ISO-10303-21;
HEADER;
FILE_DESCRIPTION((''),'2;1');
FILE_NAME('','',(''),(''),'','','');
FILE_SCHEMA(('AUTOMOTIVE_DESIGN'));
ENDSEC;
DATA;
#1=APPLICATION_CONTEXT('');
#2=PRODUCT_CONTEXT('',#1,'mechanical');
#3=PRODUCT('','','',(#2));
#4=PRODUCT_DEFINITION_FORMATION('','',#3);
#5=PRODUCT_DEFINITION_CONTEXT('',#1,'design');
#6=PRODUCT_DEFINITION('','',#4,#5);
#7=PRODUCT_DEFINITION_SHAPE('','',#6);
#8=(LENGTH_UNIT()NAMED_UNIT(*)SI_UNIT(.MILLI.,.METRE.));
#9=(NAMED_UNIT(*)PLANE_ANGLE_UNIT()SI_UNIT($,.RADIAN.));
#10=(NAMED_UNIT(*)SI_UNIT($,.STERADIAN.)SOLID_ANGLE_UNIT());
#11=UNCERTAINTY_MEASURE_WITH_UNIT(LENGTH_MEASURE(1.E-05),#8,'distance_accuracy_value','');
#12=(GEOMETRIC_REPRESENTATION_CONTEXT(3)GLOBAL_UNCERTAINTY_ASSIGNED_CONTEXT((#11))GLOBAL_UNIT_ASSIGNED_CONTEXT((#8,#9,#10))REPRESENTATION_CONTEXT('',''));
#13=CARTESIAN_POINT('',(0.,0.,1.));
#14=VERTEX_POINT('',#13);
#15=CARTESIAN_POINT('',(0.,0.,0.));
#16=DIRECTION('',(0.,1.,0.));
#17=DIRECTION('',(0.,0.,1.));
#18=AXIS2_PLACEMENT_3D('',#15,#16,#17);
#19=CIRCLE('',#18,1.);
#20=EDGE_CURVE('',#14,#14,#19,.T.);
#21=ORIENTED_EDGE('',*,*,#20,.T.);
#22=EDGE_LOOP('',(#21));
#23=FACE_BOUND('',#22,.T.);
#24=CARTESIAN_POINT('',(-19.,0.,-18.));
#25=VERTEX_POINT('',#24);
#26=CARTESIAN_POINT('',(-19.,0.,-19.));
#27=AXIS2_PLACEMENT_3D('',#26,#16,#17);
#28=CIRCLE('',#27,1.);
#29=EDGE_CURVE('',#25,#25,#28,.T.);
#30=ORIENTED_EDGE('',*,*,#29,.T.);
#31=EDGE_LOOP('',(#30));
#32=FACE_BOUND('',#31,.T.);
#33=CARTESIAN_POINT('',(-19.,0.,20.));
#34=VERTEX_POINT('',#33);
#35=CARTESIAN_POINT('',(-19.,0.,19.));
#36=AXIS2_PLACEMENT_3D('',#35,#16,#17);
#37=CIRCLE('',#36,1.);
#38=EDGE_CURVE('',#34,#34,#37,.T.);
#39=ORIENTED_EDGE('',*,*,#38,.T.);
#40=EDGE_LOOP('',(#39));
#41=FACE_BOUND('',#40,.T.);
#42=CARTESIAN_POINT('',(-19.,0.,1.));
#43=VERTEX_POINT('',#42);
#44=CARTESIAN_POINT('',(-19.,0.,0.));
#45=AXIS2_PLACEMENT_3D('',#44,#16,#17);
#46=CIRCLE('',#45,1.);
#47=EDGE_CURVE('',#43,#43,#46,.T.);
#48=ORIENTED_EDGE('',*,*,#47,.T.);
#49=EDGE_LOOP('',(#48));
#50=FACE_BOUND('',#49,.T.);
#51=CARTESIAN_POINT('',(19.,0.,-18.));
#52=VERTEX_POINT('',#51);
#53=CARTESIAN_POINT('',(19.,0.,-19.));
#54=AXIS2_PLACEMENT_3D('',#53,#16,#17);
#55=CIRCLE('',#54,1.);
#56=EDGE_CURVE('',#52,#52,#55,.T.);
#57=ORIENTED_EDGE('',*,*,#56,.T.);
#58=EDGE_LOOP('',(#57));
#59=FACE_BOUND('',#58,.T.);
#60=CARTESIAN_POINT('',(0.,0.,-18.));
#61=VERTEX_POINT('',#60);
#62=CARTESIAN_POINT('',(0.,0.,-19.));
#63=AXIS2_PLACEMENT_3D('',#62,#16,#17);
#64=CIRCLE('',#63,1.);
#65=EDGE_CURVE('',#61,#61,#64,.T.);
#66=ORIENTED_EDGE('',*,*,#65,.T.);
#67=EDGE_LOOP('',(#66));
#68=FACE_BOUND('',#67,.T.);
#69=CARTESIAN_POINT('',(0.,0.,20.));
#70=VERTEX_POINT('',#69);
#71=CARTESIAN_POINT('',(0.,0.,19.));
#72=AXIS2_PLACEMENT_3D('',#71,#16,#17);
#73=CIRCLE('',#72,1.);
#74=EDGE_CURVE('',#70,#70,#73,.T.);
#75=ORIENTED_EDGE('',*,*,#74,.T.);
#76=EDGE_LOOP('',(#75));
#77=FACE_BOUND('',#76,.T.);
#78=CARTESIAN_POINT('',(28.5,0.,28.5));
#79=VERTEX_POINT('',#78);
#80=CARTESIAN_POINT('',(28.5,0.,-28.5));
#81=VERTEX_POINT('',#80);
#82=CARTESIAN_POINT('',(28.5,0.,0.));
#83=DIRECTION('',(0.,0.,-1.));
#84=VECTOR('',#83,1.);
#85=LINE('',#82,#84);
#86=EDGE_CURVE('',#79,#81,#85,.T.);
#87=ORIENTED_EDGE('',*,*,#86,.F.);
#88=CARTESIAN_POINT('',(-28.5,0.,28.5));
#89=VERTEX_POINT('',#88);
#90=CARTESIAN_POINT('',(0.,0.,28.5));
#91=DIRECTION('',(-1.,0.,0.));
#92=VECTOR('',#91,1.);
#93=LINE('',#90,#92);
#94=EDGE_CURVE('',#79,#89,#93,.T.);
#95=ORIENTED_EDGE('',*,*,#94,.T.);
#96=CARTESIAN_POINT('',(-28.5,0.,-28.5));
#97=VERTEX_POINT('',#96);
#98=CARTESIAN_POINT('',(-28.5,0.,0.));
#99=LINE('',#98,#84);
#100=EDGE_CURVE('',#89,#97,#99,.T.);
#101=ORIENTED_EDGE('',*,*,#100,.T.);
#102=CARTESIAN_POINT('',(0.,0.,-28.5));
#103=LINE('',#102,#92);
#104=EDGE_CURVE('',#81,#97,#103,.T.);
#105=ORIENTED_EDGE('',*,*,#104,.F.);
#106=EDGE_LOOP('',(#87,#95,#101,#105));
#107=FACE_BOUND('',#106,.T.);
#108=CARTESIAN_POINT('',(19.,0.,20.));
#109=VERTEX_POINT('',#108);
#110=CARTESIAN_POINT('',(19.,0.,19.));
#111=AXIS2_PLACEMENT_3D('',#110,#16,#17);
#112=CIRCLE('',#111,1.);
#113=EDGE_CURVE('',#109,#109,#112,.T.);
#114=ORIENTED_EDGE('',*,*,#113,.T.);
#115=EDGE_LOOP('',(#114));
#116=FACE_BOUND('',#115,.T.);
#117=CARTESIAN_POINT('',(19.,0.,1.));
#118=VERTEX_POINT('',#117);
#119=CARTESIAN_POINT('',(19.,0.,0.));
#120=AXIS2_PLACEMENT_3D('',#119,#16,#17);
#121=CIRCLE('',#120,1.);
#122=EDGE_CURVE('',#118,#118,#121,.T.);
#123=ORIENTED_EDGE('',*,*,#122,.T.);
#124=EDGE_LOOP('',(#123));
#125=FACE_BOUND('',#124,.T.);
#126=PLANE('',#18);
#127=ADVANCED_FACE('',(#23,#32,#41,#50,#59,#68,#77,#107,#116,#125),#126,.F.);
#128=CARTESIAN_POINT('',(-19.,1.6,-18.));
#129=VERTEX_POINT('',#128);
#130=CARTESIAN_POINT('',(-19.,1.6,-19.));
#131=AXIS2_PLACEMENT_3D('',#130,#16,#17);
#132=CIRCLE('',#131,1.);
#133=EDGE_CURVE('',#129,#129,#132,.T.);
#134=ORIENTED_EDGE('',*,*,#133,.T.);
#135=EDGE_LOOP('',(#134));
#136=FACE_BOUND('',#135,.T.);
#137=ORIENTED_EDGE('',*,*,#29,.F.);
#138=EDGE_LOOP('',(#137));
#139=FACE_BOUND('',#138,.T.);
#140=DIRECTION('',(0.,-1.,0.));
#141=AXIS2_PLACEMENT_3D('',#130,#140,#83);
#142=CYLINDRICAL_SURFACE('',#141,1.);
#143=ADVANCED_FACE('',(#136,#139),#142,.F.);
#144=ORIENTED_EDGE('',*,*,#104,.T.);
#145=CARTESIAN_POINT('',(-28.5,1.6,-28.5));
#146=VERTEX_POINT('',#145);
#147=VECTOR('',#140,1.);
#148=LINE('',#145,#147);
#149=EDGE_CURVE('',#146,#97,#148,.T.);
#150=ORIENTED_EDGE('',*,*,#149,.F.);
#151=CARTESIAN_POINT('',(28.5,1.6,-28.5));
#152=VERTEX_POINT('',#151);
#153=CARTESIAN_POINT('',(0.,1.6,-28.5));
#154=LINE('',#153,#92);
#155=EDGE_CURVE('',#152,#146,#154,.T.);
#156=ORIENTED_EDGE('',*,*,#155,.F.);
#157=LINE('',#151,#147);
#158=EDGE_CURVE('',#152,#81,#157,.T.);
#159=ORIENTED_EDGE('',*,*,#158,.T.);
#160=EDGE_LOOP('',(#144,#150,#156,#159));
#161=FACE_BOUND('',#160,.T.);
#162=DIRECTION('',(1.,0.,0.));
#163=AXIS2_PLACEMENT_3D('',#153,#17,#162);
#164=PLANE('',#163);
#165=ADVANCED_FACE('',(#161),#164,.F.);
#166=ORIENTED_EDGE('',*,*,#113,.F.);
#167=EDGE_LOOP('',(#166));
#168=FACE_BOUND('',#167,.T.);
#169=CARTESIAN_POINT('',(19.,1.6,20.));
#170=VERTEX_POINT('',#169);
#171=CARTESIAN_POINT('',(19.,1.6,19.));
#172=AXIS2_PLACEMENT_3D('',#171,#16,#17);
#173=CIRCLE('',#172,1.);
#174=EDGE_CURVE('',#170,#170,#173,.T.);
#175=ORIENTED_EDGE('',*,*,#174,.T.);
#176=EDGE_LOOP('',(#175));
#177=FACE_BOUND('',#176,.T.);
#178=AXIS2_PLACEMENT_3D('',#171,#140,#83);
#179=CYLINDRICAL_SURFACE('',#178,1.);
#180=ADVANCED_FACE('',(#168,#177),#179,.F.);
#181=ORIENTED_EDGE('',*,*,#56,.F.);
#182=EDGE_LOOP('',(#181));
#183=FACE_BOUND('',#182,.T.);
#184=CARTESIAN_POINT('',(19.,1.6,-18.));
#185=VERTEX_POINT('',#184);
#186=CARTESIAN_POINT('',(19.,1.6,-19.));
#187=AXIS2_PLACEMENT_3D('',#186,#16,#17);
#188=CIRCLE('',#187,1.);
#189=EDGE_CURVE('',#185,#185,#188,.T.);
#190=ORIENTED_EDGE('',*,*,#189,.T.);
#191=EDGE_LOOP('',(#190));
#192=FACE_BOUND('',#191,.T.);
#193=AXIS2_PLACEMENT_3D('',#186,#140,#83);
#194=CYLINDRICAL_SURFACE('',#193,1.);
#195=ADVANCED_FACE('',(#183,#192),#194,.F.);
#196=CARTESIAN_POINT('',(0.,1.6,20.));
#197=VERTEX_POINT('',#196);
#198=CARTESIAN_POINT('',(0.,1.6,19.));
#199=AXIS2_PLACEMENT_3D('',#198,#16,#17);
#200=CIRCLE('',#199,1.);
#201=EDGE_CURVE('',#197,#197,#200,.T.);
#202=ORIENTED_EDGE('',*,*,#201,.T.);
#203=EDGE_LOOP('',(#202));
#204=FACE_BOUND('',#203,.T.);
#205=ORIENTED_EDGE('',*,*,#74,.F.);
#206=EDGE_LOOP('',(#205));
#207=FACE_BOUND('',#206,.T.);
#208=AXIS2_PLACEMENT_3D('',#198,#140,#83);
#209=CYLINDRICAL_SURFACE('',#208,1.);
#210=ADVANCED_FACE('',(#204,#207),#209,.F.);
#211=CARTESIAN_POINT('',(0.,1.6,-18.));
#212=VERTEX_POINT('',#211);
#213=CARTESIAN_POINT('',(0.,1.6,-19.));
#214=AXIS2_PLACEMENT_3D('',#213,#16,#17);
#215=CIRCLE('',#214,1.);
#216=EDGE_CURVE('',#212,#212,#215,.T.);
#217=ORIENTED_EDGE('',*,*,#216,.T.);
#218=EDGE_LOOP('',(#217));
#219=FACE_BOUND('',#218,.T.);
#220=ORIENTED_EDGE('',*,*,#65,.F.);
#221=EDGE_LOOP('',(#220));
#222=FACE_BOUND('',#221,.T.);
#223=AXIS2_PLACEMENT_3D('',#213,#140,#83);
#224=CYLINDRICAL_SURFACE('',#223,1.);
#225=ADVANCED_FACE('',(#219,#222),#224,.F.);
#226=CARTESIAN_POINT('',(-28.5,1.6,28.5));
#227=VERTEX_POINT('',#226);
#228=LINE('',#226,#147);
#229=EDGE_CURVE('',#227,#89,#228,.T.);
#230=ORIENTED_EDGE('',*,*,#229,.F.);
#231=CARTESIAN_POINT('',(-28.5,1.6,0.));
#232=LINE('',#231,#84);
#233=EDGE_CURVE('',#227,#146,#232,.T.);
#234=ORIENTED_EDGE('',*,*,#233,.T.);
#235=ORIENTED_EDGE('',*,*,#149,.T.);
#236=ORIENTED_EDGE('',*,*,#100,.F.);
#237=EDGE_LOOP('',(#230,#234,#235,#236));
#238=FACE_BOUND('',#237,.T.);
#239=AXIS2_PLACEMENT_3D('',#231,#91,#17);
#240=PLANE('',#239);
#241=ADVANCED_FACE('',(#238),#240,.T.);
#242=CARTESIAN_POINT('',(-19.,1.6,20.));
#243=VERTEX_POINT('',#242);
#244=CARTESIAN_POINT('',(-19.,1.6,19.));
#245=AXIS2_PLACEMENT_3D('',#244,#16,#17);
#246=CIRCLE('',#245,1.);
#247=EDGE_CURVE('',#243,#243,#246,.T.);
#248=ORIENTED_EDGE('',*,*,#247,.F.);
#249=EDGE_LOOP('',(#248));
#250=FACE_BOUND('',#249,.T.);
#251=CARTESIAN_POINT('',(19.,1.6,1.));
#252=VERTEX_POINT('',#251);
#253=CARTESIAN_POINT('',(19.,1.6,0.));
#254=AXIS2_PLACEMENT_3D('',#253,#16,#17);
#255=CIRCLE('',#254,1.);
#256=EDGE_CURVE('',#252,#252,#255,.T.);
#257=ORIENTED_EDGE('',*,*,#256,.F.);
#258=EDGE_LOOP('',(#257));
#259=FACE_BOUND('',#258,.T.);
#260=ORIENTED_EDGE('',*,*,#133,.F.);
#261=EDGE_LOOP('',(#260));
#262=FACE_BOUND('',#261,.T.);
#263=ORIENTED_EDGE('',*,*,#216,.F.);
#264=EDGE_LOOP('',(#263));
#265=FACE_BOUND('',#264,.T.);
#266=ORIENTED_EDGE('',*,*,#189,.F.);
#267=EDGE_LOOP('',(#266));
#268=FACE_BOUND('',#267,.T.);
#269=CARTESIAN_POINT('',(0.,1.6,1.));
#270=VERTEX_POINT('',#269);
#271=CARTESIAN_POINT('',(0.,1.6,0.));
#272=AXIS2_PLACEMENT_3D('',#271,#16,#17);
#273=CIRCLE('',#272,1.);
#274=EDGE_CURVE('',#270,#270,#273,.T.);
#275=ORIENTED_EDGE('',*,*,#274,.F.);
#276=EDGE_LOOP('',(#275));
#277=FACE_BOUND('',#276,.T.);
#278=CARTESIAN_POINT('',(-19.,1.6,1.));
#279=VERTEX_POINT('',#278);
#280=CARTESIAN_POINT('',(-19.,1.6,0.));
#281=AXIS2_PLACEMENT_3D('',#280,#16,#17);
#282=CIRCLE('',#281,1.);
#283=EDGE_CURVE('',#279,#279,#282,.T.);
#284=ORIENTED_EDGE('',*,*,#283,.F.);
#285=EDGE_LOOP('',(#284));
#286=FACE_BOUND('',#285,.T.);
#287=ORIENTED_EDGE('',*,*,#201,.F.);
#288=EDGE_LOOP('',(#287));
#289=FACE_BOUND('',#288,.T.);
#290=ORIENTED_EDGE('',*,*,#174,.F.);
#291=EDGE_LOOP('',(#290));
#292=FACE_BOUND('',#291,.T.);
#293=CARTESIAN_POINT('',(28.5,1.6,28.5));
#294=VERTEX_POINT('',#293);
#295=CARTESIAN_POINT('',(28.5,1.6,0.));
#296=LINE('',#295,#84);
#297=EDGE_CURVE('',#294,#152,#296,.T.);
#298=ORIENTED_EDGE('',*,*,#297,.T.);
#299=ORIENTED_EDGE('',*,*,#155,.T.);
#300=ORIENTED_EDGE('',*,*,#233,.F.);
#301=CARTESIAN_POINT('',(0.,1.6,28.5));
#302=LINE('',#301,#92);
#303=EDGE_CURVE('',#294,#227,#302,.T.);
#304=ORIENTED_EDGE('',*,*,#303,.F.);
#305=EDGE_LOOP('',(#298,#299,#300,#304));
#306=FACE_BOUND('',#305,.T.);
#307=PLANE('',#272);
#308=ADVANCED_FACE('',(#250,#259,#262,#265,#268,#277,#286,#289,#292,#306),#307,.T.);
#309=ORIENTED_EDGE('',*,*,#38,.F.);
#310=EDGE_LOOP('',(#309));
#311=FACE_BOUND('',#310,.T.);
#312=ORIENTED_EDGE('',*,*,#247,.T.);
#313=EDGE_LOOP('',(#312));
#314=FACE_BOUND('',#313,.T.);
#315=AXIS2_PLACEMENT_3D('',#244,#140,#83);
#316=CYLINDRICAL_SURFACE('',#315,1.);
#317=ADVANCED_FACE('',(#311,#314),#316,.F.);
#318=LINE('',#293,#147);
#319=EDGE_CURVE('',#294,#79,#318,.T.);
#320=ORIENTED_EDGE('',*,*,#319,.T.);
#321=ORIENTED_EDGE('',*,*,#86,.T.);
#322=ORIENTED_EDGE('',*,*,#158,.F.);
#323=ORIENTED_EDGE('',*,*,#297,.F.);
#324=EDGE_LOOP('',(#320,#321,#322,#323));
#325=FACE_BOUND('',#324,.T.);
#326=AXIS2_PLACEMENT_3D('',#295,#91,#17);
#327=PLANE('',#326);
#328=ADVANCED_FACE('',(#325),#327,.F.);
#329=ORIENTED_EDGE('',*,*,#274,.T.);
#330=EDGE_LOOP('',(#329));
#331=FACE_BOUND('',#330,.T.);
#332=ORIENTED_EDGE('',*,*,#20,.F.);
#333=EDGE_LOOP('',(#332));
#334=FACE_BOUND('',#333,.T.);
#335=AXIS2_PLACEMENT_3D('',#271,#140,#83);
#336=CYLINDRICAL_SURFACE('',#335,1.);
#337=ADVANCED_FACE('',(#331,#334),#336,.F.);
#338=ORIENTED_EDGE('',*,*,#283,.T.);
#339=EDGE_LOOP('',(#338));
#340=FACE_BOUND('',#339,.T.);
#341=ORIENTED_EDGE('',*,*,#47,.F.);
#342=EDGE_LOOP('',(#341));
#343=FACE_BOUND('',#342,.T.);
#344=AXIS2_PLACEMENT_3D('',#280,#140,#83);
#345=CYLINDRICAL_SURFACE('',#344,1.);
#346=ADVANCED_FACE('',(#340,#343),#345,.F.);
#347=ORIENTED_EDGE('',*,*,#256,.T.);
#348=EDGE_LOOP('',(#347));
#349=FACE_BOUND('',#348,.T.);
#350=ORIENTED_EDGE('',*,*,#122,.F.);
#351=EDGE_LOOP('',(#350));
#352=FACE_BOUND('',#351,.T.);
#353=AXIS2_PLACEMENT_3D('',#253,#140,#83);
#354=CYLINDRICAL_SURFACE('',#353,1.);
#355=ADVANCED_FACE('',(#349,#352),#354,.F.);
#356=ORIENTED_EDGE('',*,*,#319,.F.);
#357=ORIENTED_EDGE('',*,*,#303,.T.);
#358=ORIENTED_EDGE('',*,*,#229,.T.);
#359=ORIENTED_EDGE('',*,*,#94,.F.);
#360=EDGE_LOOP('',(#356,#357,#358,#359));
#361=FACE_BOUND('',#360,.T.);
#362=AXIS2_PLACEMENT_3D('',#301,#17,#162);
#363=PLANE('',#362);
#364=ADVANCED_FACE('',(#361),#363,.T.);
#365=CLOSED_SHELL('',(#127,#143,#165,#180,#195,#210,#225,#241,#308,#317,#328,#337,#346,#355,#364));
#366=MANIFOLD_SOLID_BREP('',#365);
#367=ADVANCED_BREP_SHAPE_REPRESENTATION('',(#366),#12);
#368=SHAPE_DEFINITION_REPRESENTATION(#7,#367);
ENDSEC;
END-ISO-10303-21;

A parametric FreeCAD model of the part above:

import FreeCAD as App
import Part
import Sketcher

doc = App.newDocument("Part")
body = doc.addObject("PartDesign::Body", "Body")

# Sketch on XZ plane
sketch1 = body.newObject("Sketcher::SketchObject", "Sketch")
sketch1.AttachmentSupport = (doc.getObject("XZ_Plane"), [""])
sketch1.MapMode = "FlatFace"
sketch1.addGeometry([
    Part.LineSegment(App.Vector(-28.5, -28.5, 0), App.Vector(-28.5, 28.5, 0)),  # 0
    Part.LineSegment(App.Vector(-28.5, 28.5, 0), App.Vector(28.5, 28.5, 0)),  # 1
    Part.LineSegment(App.Vector(28.5, 28.5, 0), App.Vector(28.5, -28.5, 0)),  # 2
    Part.LineSegment(App.Vector(28.5, -28.5, 0), App.Vector(-28.5, -28.5, 0)),  # 3
    Part.Circle(App.Vector(-19, 19, 0), App.Vector(0, 0, 1), 1),  # 4
    Part.Circle(App.Vector(0, 19, 0), App.Vector(0, 0, 1), 1),  # 5
    Part.Circle(App.Vector(19, 19, 0), App.Vector(0, 0, 1), 1),  # 6
    Part.Circle(App.Vector(-19, 0, 0), App.Vector(0, 0, 1), 1),  # 7
    Part.Circle(App.Vector(-19, -19, 0), App.Vector(0, 0, 1), 1),  # 8
    Part.Circle(App.Vector(0, 0, 0), App.Vector(0, 0, 1), 1),  # 9
    Part.Circle(App.Vector(19, 0, 0), App.Vector(0, 0, 1), 1),  # 10
    Part.Circle(App.Vector(0, -19, 0), App.Vector(0, 0, 1), 1),  # 11
    Part.Circle(App.Vector(19, -19, 0), App.Vector(0, 0, 1), 1),  # 12
], False)
sketch1.addConstraint([
    Sketcher.Constraint("Coincident", 0, 2, 1, 1),
    Sketcher.Constraint("Coincident", 1, 2, 2, 1),
    Sketcher.Constraint("Coincident", 2, 2, 3, 1),
    Sketcher.Constraint("Coincident", 3, 2, 0, 1),
    Sketcher.Constraint("Vertical", 0),
    Sketcher.Constraint("Horizontal", 1),
    Sketcher.Constraint("Vertical", 2),
    Sketcher.Constraint("Horizontal", 3),
    Sketcher.Constraint("Coincident", 9, 3, -1, 1),
    Sketcher.Constraint("Equal", 4, 5),
    Sketcher.Constraint("Equal", 5, 6),
    Sketcher.Constraint("Equal", 6, 7),
    Sketcher.Constraint("Equal", 7, 8),
    Sketcher.Constraint("Equal", 8, 9),
    Sketcher.Constraint("Equal", 9, 10),
    Sketcher.Constraint("Equal", 10, 11),
    Sketcher.Constraint("Equal", 11, 12),
    Sketcher.Constraint("Symmetric", 6, 3, 8, 3, -1, 1),
    Sketcher.Constraint("Symmetric", 7, 3, 10, 3, -1, 1),
    Sketcher.Constraint("Symmetric", 5, 3, 11, 3, -1, 1),
    Sketcher.Constraint("Symmetric", 4, 3, 12, 3, -1, 1),
    Sketcher.Constraint("Symmetric", 0, 2, 2, 2, -1, 1),
    Sketcher.Constraint("Symmetric", 4, 3, 6, 3, -2),
    Sketcher.Constraint("PointOnObject", 5, 3, -2),
    Sketcher.Constraint("PointOnObject", 7, 3, -1),
    Sketcher.Constraint("Horizontal", 4, 3, 5, 3),
    Sketcher.Constraint("Vertical", 4, 3, 7, 3),
    Sketcher.Constraint("Equal", 3, 0),
    Sketcher.Constraint("Diameter", 4, 2.0),
    Sketcher.Constraint("DistanceX", 1, 1, 1, 2, 57.0),
    Sketcher.Constraint("DistanceX", 4, 3, -1, 1, 19.0),
    Sketcher.Constraint("DistanceY", -1, 1, 4, 3, 19.0),
])
pad1 = body.newObject("PartDesign::Pad", "Pad")
pad1.Profile = sketch1
pad1.Length = 1.6
pad1.Reversed = True

doc.recompute()
